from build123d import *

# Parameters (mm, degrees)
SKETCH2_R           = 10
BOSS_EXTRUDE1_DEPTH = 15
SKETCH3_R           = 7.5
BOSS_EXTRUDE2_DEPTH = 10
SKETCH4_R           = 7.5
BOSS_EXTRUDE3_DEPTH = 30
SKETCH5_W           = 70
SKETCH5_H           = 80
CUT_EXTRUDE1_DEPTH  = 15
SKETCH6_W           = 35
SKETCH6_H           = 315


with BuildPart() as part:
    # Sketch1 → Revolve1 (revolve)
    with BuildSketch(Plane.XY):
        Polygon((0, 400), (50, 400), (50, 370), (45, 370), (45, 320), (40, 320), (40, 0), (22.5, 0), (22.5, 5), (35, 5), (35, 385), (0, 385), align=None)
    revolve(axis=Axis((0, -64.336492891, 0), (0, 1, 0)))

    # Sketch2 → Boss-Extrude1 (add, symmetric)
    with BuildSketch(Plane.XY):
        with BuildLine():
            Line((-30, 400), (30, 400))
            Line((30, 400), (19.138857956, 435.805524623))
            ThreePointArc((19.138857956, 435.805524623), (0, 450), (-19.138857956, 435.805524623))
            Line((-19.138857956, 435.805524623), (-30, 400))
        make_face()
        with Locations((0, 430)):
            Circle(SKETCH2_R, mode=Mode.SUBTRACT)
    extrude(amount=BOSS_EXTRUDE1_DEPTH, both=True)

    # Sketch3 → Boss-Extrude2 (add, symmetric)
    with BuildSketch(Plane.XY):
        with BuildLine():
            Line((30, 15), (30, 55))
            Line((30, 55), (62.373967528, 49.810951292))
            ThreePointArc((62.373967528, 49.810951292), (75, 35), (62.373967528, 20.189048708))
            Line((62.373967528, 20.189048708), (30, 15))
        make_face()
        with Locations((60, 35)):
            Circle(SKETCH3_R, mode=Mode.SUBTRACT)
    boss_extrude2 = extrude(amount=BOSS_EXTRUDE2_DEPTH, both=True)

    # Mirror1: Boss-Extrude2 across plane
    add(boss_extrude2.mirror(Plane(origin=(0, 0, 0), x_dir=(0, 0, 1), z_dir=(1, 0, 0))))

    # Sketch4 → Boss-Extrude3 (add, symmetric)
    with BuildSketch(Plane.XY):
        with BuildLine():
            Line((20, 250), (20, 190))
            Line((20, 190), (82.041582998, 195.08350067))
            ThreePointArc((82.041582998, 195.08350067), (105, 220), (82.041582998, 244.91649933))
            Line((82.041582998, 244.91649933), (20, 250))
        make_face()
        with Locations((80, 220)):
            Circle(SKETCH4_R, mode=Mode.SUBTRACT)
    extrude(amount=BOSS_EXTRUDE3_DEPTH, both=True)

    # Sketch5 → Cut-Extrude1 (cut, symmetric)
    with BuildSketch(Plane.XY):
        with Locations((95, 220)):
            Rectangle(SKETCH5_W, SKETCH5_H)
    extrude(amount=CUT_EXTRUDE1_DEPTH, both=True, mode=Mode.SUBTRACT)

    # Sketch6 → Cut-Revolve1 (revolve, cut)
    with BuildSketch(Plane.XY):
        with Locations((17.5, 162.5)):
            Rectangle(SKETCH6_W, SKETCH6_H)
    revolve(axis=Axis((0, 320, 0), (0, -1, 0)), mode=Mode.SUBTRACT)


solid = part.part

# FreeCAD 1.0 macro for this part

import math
import FreeCAD as App
import Part
import Sketcher
from FreeCAD import Vector


def add_polygon(sketch, points):
    """Adds a closed chain of lines whose ends are joined by coincident constraints."""
    first, n = sketch.GeometryCount, len(points)
    for a, b in zip(points, points[1:] + points[:1]):
        sketch.addGeometry(Part.LineSegment(App.Vector(*a, 0), App.Vector(*b, 0)), False)
    for i in range(n):
        sketch.addConstraint(Sketcher.Constraint("Coincident", first + i, 2, first + (i + 1) % n, 1))

doc = App.newDocument("Part")
params = doc.addObject("Spreadsheet::Sheet", "Params")
for row, (alias, value) in enumerate([
    ("sketch1_width", "50 mm"),
    ("sketch1_width2", "35 mm"),
    ("sketch1_width3", "5 mm"),
    ("sketch1_height", "15 mm"),
    ("sketch1_height2", "380 mm"),
    ("revolution_angle", "360 deg"),
    ("sketch2_diameter", "20 mm"),
    ("sketch2_radius", "20 mm"),
    ("sketch2_width", "60 mm"),
    ("pad1_length", "30 mm"),
    ("sketch3_diameter", "15 mm"),
    ("sketch3_radius", "15 mm"),
    ("sketch3_height", "40 mm"),
    ("pad2_length", "20 mm"),
    ("sketch4_diameter", "15 mm"),
    ("sketch4_radius", "25 mm"),
    ("sketch4_height", "60 mm"),
    ("pad3_length", "60 mm"),
    ("sketch5_width", "70 mm"),
    ("sketch5_height", "80 mm"),
    ("pocket1_length", "30 mm"),
    ("sketch6_width", "35 mm"),
    ("sketch6_height", "315 mm"),
    ("groove_angle", "360 deg"),
], start=1):
    params.set(f"A{row}", alias)
    params.set(f"B{row}", "=" + value)
    params.setAlias(f"B{row}", alias)

body = doc.addObject("PartDesign::Body", "Body")

sketch1 = body.newObject("Sketcher::SketchObject", "Sketch")
sketch1.AttachmentSupport = (doc.getObject("XY_Plane"), [""])
sketch1.MapMode = "FlatFace"
add_polygon(sketch1, [(50, 400), (0, 400), (0, 385), (35, 385), (35, 5), (22, 5), (22, 0), (40, 0), (40, 320), (45, 320), (45, 370), (50, 370)])
sketch1.addConstraint(Sketcher.Constraint("Horizontal", 0))
sketch1.addConstraint(Sketcher.Constraint("Vertical", 1))
sketch1.addConstraint(Sketcher.Constraint("Horizontal", 2))
sketch1.addConstraint(Sketcher.Constraint("Vertical", 3))
sketch1.addConstraint(Sketcher.Constraint("Horizontal", 4))
sketch1.addConstraint(Sketcher.Constraint("Vertical", 5))
sketch1.addConstraint(Sketcher.Constraint("Horizontal", 6))
sketch1.addConstraint(Sketcher.Constraint("Vertical", 7))
sketch1.addConstraint(Sketcher.Constraint("Horizontal", 8))
sketch1.addConstraint(Sketcher.Constraint("Vertical", 9))
sketch1.addConstraint(Sketcher.Constraint("Horizontal", 10))
sketch1.addConstraint(Sketcher.Constraint("Vertical", 11))
sketch1.addConstraint(Sketcher.Constraint("PointOnObject", 0, 2, -2))
sketch1.addConstraint(Sketcher.Constraint("PointOnObject", 5, 2, -1))
sketch1.addConstraint(Sketcher.Constraint("Equal", 8, 10))
sketch1.addConstraint(Sketcher.Constraint("Equal", 10, 5))
sketch1.addConstraint(Sketcher.Constraint("Equal", 0, 9))
sketch1.addConstraint(Sketcher.Constraint("DistanceX", 0, 2, 0, 1, 50.0))
sketch1.addConstraint(Sketcher.Constraint("DistanceX", 2, 1, 2, 2, 35.0))
sketch1.addConstraint(Sketcher.Constraint("DistanceX", 8, 1, 8, 2, 5.0))
sketch1.addConstraint(Sketcher.Constraint("DistanceY", 1, 2, 1, 1, 15.0))
sketch1.addConstraint(Sketcher.Constraint("DistanceY", 3, 2, 3, 1, 380.0))
sketch1.addConstraint(Sketcher.Constraint("DistanceY", 7, 1, 7, 2, 320.0))
sketch1.addConstraint(Sketcher.Constraint("DistanceX", 4, 2, 4, 1, 12.5))
sketch1.setExpression("Constraints[29]", "Params.sketch1_width")
sketch1.setExpression("Constraints[30]", "Params.sketch1_width2")
sketch1.setExpression("Constraints[31]", "Params.sketch1_width3")
sketch1.setExpression("Constraints[32]", "Params.sketch1_height")
sketch1.setExpression("Constraints[33]", "Params.sketch1_height2")
revolution = body.newObject("PartDesign::Revolution", "Revolution")
revolution.Profile = sketch1
revolution.ReferenceAxis = (sketch1, ["V_Axis"])
revolution.setExpression("Angle", "Params.revolution_angle")

sketch2 = body.newObject("Sketcher::SketchObject", "Sketch001")
sketch2.AttachmentSupport = (doc.getObject("XY_Plane"), [""])
sketch2.MapMode = "FlatFace"
sketch2.addGeometry(Part.LineSegment(Vector(-30, 400, 0), Vector(30, 400, 0)), False)
sketch2.addGeometry(Part.LineSegment(Vector(30, 400, 0), Vector(19, 436, 0)), False)
sketch2.addGeometry(Part.ArcOfCircle(Part.Circle(Vector(0, 430, 0), Vector(0, 0, 1), 20), math.radians(17), math.radians(163)), False)
sketch2.addGeometry(Part.LineSegment(Vector(-19, 436, 0), Vector(-30, 400, 0)), False)
sketch2.addGeometry(Part.Circle(Vector(0, 430, 0), Vector(0, 0, 1), 10), False)
sketch2.addConstraint(Sketcher.Constraint("Coincident", 0, 2, 1, 1))
sketch2.addConstraint(Sketcher.Constraint("Tangent", 1, 2, 2, 1))
sketch2.addConstraint(Sketcher.Constraint("Tangent", 2, 2, 3, 1))
sketch2.addConstraint(Sketcher.Constraint("Coincident", 3, 2, 0, 1))
sketch2.addConstraint(Sketcher.Constraint("Horizontal", 0))
sketch2.addConstraint(Sketcher.Constraint("Coincident", 4, 3, 2, 3))
sketch2.addConstraint(Sketcher.Constraint("Symmetric", 1, 2, 2, 2, -2))
sketch2.addConstraint(Sketcher.Constraint("Diameter", 4, 20.0))
sketch2.addConstraint(Sketcher.Constraint("Radius", 2, 20.0))
sketch2.addConstraint(Sketcher.Constraint("DistanceX", 0, 1, 0, 2, 60.0))
sketch2.addConstraint(Sketcher.Constraint("DistanceY", -1, 1, 2, 3, 430.0))
sketch2.addConstraint(Sketcher.Constraint("DistanceY", -1, 1, 0, 2, 400.0))
sketch2.setExpression("Constraints[7]", "Params.sketch2_diameter")
sketch2.setExpression("Constraints[8]", "Params.sketch2_radius")
sketch2.setExpression("Constraints[9]", "Params.sketch2_width")
pad1 = body.newObject("PartDesign::Pad", "Pad")
pad1.Profile = sketch2
pad1.setExpression("Length", "Params.pad1_length")
pad1.Midplane = True

sketch3 = body.newObject("Sketcher::SketchObject", "Sketch002")
sketch3.AttachmentSupport = (doc.getObject("XY_Plane"), [""])
sketch3.MapMode = "FlatFace"
sketch3.addGeometry(Part.LineSegment(Vector(30, 55, 0), Vector(30, 15, 0)), False)
sketch3.addGeometry(Part.LineSegment(Vector(30, 15, 0), Vector(62, 20, 0)), False)
sketch3.addGeometry(Part.ArcOfCircle(Part.Circle(Vector(60, 35, 0), Vector(0, 0, 1), 15), math.radians(-81), math.radians(81)), False)
sketch3.addGeometry(Part.LineSegment(Vector(62, 50, 0), Vector(30, 55, 0)), False)
sketch3.addGeometry(Part.Circle(Vector(60, 35, 0), Vector(0, 0, 1), 8), False)
sketch3.addConstraint(Sketcher.Constraint("Coincident", 0, 2, 1, 1))
sketch3.addConstraint(Sketcher.Constraint("Tangent", 1, 2, 2, 1))
sketch3.addConstraint(Sketcher.Constraint("Tangent", 2, 2, 3, 1))
sketch3.addConstraint(Sketcher.Constraint("Coincident", 3, 2, 0, 1))
sketch3.addConstraint(Sketcher.Constraint("Vertical", 0))
sketch3.addConstraint(Sketcher.Constraint("Coincident", 4, 3, 2, 3))
sketch3.addConstraint(Sketcher.Constraint("Vertical", 1, 2, 2, 2))
sketch3.addConstraint(Sketcher.Constraint("Diameter", 4, 15.0))
sketch3.addConstraint(Sketcher.Constraint("Radius", 2, 15.0))
sketch3.addConstraint(Sketcher.Constraint("DistanceY", 0, 2, 0, 1, 40.0))
sketch3.addConstraint(Sketcher.Constraint("DistanceX", -1, 1, 2, 3, 60.0))
sketch3.addConstraint(Sketcher.Constraint("DistanceY", -1, 1, 2, 3, 35.0))
sketch3.addConstraint(Sketcher.Constraint("DistanceX", -1, 1, 0, 2, 30.0))
sketch3.setExpression("Constraints[7]", "Params.sketch3_diameter")
sketch3.setExpression("Constraints[8]", "Params.sketch3_radius")
sketch3.setExpression("Constraints[9]", "Params.sketch3_height")
pad2 = body.newObject("PartDesign::Pad", "Pad001")
pad2.Profile = sketch3
pad2.setExpression("Length", "Params.pad2_length")
pad2.Midplane = True
doc.recompute()

mirrored = body.newObject("PartDesign::Mirrored", "Mirrored")
mirrored.Originals = [pad2]
mirrored.MirrorPlane = (doc.getObject("YZ_Plane"), [""])
body.Tip = mirrored

sketch4 = body.newObject("Sketcher::SketchObject", "Sketch003")
sketch4.AttachmentSupport = (doc.getObject("XY_Plane"), [""])
sketch4.MapMode = "FlatFace"
sketch4.addGeometry(Part.LineSegment(Vector(20, 250, 0), Vector(20, 190, 0)), False)
sketch4.addGeometry(Part.LineSegment(Vector(20, 190, 0), Vector(82, 195, 0)), False)
sketch4.addGeometry(Part.ArcOfCircle(Part.Circle(Vector(80, 220, 0), Vector(0, 0, 1), 25), math.radians(-85), math.radians(85)), False)
sketch4.addGeometry(Part.LineSegment(Vector(82, 245, 0), Vector(20, 250, 0)), False)
sketch4.addGeometry(Part.Circle(Vector(80, 220, 0), Vector(0, 0, 1), 8), False)
sketch4.addConstraint(Sketcher.Constraint("Coincident", 0, 2, 1, 1))
sketch4.addConstraint(Sketcher.Constraint("Tangent", 1, 2, 2, 1))
sketch4.addConstraint(Sketcher.Constraint("Tangent", 2, 2, 3, 1))
sketch4.addConstraint(Sketcher.Constraint("Coincident", 3, 2, 0, 1))
sketch4.addConstraint(Sketcher.Constraint("Vertical", 0))
sketch4.addConstraint(Sketcher.Constraint("Coincident", 4, 3, 2, 3))
sketch4.addConstraint(Sketcher.Constraint("Vertical", 1, 2, 2, 2))
sketch4.addConstraint(Sketcher.Constraint("Diameter", 4, 15.0))
sketch4.addConstraint(Sketcher.Constraint("Radius", 2, 25.0))
sketch4.addConstraint(Sketcher.Constraint("DistanceY", 0, 2, 0, 1, 60.0))
sketch4.addConstraint(Sketcher.Constraint("DistanceX", -1, 1, 2, 3, 80.0))
sketch4.addConstraint(Sketcher.Constraint("DistanceY", -1, 1, 2, 3, 220.0))
sketch4.addConstraint(Sketcher.Constraint("DistanceX", -1, 1, 0, 2, 20.0))
sketch4.setExpression("Constraints[7]", "Params.sketch4_diameter")
sketch4.setExpression("Constraints[8]", "Params.sketch4_radius")
sketch4.setExpression("Constraints[9]", "Params.sketch4_height")
pad3 = body.newObject("PartDesign::Pad", "Pad002")
pad3.Profile = sketch4
pad3.setExpression("Length", "Params.pad3_length")
pad3.Midplane = True

sketch5 = body.newObject("Sketcher::SketchObject", "Sketch004")
sketch5.AttachmentSupport = (doc.getObject("XY_Plane"), [""])
sketch5.MapMode = "FlatFace"
add_polygon(sketch5, [(60, 260), (60, 180), (130, 180), (130, 260)])
sketch5.addConstraint(Sketcher.Constraint("Vertical", 0))
sketch5.addConstraint(Sketcher.Constraint("Horizontal", 1))
sketch5.addConstraint(Sketcher.Constraint("Vertical", 2))
sketch5.addConstraint(Sketcher.Constraint("Horizontal", 3))
sketch5.addConstraint(Sketcher.Constraint("DistanceX", 1, 1, 1, 2, 70.0))
sketch5.addConstraint(Sketcher.Constraint("DistanceY", 0, 2, 0, 1, 80.0))
sketch5.addConstraint(Sketcher.Constraint("DistanceX", -1, 1, 0, 2, 60.0))
sketch5.addConstraint(Sketcher.Constraint("DistanceY", -1, 1, 0, 2, 180.0))
sketch5.setExpression("Constraints[8]", "Params.sketch5_width")
sketch5.setExpression("Constraints[9]", "Params.sketch5_height")
pocket1 = body.newObject("PartDesign::Pocket", "Pocket")
pocket1.Profile = sketch5
pocket1.setExpression("Length", "Params.pocket1_length")
pocket1.Midplane = True

sketch6 = body.newObject("Sketcher::SketchObject", "Sketch005")
sketch6.AttachmentSupport = (doc.getObject("XY_Plane"), [""])
sketch6.MapMode = "FlatFace"
add_polygon(sketch6, [(0, 320), (0, 5), (35, 5), (35, 320)])
sketch6.addConstraint(Sketcher.Constraint("Vertical", 0))
sketch6.addConstraint(Sketcher.Constraint("Horizontal", 1))
sketch6.addConstraint(Sketcher.Constraint("Vertical", 2))
sketch6.addConstraint(Sketcher.Constraint("Horizontal", 3))
sketch6.addConstraint(Sketcher.Constraint("PointOnObject", 0, 2, -2))
sketch6.addConstraint(Sketcher.Constraint("DistanceX", 1, 1, 1, 2, 35.0))
sketch6.addConstraint(Sketcher.Constraint("DistanceY", 0, 2, 0, 1, 315.0))
sketch6.addConstraint(Sketcher.Constraint("DistanceY", -1, 1, 0, 2, 5.0))
sketch6.setExpression("Constraints[9]", "Params.sketch6_width")
sketch6.setExpression("Constraints[10]", "Params.sketch6_height")
groove = body.newObject("PartDesign::Groove", "Groove")
groove.Profile = sketch6
groove.ReferenceAxis = (sketch6, ["V_Axis"])
groove.setExpression("Angle", "Params.groove_angle")

doc.recompute()
